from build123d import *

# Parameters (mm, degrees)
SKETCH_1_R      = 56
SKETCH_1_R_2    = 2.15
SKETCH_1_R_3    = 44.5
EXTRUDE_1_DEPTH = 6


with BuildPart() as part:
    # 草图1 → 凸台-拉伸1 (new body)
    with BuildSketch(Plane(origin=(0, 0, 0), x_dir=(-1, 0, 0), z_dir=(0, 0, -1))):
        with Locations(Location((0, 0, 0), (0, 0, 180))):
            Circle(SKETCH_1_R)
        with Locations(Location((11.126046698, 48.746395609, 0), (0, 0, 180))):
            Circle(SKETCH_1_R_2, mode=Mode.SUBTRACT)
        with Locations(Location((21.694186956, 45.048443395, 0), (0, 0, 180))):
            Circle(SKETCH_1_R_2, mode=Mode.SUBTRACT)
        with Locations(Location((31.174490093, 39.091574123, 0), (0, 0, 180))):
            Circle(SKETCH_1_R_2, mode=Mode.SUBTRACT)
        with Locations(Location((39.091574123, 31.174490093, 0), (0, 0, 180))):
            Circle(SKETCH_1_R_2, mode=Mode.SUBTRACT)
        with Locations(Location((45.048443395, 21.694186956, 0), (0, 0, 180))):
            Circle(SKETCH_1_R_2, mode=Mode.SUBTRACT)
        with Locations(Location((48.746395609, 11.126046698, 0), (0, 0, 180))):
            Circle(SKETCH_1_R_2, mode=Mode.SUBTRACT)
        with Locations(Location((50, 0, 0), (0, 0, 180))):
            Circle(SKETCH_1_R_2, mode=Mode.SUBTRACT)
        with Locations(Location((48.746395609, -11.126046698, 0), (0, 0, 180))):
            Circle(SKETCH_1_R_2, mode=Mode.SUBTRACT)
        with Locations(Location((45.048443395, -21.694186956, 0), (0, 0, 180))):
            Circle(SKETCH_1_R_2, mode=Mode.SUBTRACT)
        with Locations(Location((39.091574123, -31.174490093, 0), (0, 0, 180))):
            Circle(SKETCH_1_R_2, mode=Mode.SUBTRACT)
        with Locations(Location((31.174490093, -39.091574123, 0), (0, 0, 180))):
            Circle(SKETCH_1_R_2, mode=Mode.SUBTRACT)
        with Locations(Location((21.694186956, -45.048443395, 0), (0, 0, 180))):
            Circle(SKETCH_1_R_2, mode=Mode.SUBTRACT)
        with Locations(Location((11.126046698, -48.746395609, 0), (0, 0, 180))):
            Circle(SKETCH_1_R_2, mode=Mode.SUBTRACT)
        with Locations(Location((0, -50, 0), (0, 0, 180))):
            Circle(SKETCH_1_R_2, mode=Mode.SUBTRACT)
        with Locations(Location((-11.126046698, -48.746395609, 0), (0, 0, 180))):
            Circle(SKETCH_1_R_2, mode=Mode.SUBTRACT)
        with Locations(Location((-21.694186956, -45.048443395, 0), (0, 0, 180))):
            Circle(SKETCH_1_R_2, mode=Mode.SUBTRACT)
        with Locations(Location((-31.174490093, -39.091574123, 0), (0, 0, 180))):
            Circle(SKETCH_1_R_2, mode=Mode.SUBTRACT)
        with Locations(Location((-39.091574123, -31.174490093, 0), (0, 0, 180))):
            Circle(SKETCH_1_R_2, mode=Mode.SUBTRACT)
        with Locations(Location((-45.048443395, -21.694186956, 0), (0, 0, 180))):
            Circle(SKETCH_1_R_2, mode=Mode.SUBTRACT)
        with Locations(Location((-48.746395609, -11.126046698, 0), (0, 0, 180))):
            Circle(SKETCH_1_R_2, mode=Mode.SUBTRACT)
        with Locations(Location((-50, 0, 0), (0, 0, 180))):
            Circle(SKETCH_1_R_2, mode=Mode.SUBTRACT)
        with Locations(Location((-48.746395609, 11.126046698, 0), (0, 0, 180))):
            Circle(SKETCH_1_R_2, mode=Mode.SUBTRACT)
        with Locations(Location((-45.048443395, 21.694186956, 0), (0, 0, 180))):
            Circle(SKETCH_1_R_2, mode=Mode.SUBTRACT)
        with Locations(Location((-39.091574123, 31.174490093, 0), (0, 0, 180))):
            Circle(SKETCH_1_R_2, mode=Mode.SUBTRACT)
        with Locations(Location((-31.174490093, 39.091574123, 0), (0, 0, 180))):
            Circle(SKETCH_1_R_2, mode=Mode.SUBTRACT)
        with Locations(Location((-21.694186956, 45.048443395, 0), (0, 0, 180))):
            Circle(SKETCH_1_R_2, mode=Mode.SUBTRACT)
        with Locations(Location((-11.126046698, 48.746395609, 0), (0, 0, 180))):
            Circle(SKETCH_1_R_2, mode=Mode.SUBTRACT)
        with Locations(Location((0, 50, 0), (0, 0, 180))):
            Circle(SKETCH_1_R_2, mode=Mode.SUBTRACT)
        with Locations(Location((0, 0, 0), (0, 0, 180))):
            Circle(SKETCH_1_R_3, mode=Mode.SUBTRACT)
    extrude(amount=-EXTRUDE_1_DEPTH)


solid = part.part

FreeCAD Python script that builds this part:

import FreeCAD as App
import Part
import Sketcher

V = App.Vector

doc = App.newDocument("Part")
body = doc.addObject("PartDesign::Body", "Body")

sketch1 = doc.addObject("Sketcher::SketchObject", "Sketch")
body.addObject(sketch1)
sketch1.AttachmentSupport = (doc.XY_Plane, [""])
sketch1.MapMode = "FlatFace"
sketch1.addGeometry(Part.Circle(V(0, 0, 0), V(0, 0, 1), 56), False)
sketch1.addGeometry(Part.Circle(V(-31.2, 39.1, 0), V(0, 0, 1), 2.1), False)
sketch1.addGeometry(Part.Circle(V(-39.1, 31.2, 0), V(0, 0, 1), 2.1), False)
sketch1.addGeometry(Part.Circle(V(-21.7, 45, 0), V(0, 0, 1), 2.1), False)
sketch1.addGeometry(Part.Circle(V(-11.1, 48.7, 0), V(0, 0, 1), 2.1), False)
sketch1.addGeometry(Part.Circle(V(-45, 21.7, 0), V(0, 0, 1), 2.1), False)
sketch1.addGeometry(Part.Circle(V(-48.7, 11.1, 0), V(0, 0, 1), 2.1), False)
sketch1.addGeometry(Part.Circle(V(0, 50, 0), V(0, 0, 1), 2.1), False)
sketch1.addGeometry(Part.Circle(V(11.1, 48.7, 0), V(0, 0, 1), 2.1), False)
sketch1.addGeometry(Part.Circle(V(21.7, 45, 0), V(0, 0, 1), 2.1), False)
sketch1.addGeometry(Part.Circle(V(31.2, 39.1, 0), V(0, 0, 1), 2.1), False)
sketch1.addGeometry(Part.Circle(V(39.1, 31.2, 0), V(0, 0, 1), 2.1), False)
sketch1.addGeometry(Part.Circle(V(45, 21.7, 0), V(0, 0, 1), 2.1), False)
sketch1.addGeometry(Part.Circle(V(48.7, 11.1, 0), V(0, 0, 1), 2.1), False)
sketch1.addGeometry(Part.Circle(V(-50, 0, 0), V(0, 0, 1), 2.1), False)
sketch1.addGeometry(Part.Circle(V(-48.7, -11.1, 0), V(0, 0, 1), 2.1), False)
sketch1.addGeometry(Part.Circle(V(-45, -21.7, 0), V(0, 0, 1), 2.1), False)
sketch1.addGeometry(Part.Circle(V(-39.1, -31.2, 0), V(0, 0, 1), 2.1), False)
sketch1.addGeometry(Part.Circle(V(-31.2, -39.1, 0), V(0, 0, 1), 2.1), False)
sketch1.addGeometry(Part.Circle(V(-21.7, -45, 0), V(0, 0, 1), 2.1), False)
sketch1.addGeometry(Part.Circle(V(-11.1, -48.7, 0), V(0, 0, 1), 2.1), False)
sketch1.addGeometry(Part.Circle(V(0, -50, 0), V(0, 0, 1), 2.1), False)
sketch1.addGeometry(Part.Circle(V(0, 0, 0), V(0, 0, 1), 44.5), False)
sketch1.addGeometry(Part.Circle(V(50, 0, 0), V(0, 0, 1), 2.1), False)
sketch1.addGeometry(Part.Circle(V(48.7, -11.1, 0), V(0, 0, 1), 2.1), False)
sketch1.addGeometry(Part.Circle(V(45, -21.7, 0), V(0, 0, 1), 2.1), False)
sketch1.addGeometry(Part.Circle(V(11.1, -48.7, 0), V(0, 0, 1), 2.1), False)
sketch1.addGeometry(Part.Circle(V(21.7, -45, 0), V(0, 0, 1), 2.1), False)
sketch1.addGeometry(Part.Circle(V(39.1, -31.2, 0), V(0, 0, 1), 2.1), False)
sketch1.addGeometry(Part.Circle(V(31.2, -39.1, 0), V(0, 0, 1), 2.1), False)
sketch1.addConstraint(Sketcher.Constraint("Coincident", 0, 3, -1, 1))
sketch1.addConstraint(Sketcher.Constraint("Coincident", 22, 3, -1, 1))
sketch1.addConstraint(Sketcher.Constraint("Equal", 1, 2))
sketch1.addConstraint(Sketcher.Constraint("Equal", 2, 3))
sketch1.addConstraint(Sketcher.Constraint("Equal", 3, 4))
sketch1.addConstraint(Sketcher.Constraint("Equal", 4, 5))
sketch1.addConstraint(Sketcher.Constraint("Equal", 5, 6))
sketch1.addConstraint(Sketcher.Constraint("Equal", 6, 7))
sketch1.addConstraint(Sketcher.Constraint("Equal", 7, 8))
sketch1.addConstraint(Sketcher.Constraint("Equal", 8, 9))
sketch1.addConstraint(Sketcher.Constraint("Equal", 9, 10))
sketch1.addConstraint(Sketcher.Constraint("Equal", 10, 11))
sketch1.addConstraint(Sketcher.Constraint("Equal", 11, 12))
sketch1.addConstraint(Sketcher.Constraint("Equal", 12, 13))
sketch1.addConstraint(Sketcher.Constraint("Equal", 13, 14))
sketch1.addConstraint(Sketcher.Constraint("Equal", 14, 15))
sketch1.addConstraint(Sketcher.Constraint("Equal", 15, 16))
sketch1.addConstraint(Sketcher.Constraint("Equal", 16, 17))
sketch1.addConstraint(Sketcher.Constraint("Equal", 17, 18))
sketch1.addConstraint(Sketcher.Constraint("Equal", 18, 19))
sketch1.addConstraint(Sketcher.Constraint("Equal", 19, 20))
sketch1.addConstraint(Sketcher.Constraint("Equal", 20, 21))
sketch1.addConstraint(Sketcher.Constraint("Equal", 21, 23))
sketch1.addConstraint(Sketcher.Constraint("Equal", 23, 24))
sketch1.addConstraint(Sketcher.Constraint("Equal", 24, 25))
sketch1.addConstraint(Sketcher.Constraint("Equal", 25, 26))
sketch1.addConstraint(Sketcher.Constraint("Equal", 26, 27))
sketch1.addConstraint(Sketcher.Constraint("Equal", 27, 28))
sketch1.addConstraint(Sketcher.Constraint("Equal", 28, 29))
sketch1.addConstraint(Sketcher.Constraint("Symmetric", 13, 3, 15, 3, -1, 1))
sketch1.addConstraint(Sketcher.Constraint("Symmetric", 12, 3, 16, 3, -1, 1))
sketch1.addConstraint(Sketcher.Constraint("Symmetric", 11, 3, 17, 3, -1, 1))
sketch1.addConstraint(Sketcher.Constraint("Symmetric", 10, 3, 18, 3, -1, 1))
sketch1.addConstraint(Sketcher.Constraint("Symmetric", 9, 3, 19, 3, -1, 1))
sketch1.addConstraint(Sketcher.Constraint("Symmetric", 8, 3, 20, 3, -1, 1))
sketch1.addConstraint(Sketcher.Constraint("Symmetric", 7, 3, 21, 3, -1, 1))
sketch1.addConstraint(Sketcher.Constraint("Symmetric", 14, 3, 23, 3, -1, 1))
sketch1.addConstraint(Sketcher.Constraint("Symmetric", 6, 3, 24, 3, -1, 1))
sketch1.addConstraint(Sketcher.Constraint("Symmetric", 5, 3, 25, 3, -1, 1))
sketch1.addConstraint(Sketcher.Constraint("Symmetric", 4, 3, 26, 3, -1, 1))
sketch1.addConstraint(Sketcher.Constraint("Symmetric", 3, 3, 27, 3, -1, 1))
sketch1.addConstraint(Sketcher.Constraint("Symmetric", 2, 3, 28, 3, -1, 1))
sketch1.addConstraint(Sketcher.Constraint("Symmetric", 1, 3, 29, 3, -1, 1))
sketch1.addConstraint(Sketcher.Constraint("Symmetric", 4, 3, 8, 3, -2))
sketch1.addConstraint(Sketcher.Constraint("Symmetric", 3, 3, 9, 3, -2))
sketch1.addConstraint(Sketcher.Constraint("Symmetric", 1, 3, 10, 3, -2))
sketch1.addConstraint(Sketcher.Constraint("Symmetric", 2, 3, 11, 3, -2))
sketch1.addConstraint(Sketcher.Constraint("Symmetric", 5, 3, 12, 3, -2))
sketch1.addConstraint(Sketcher.Constraint("Symmetric", 6, 3, 13, 3, -2))
sketch1.addConstraint(Sketcher.Constraint("PointOnObject", 7, 3, -2))
sketch1.addConstraint(Sketcher.Constraint("PointOnObject", 14, 3, -1))
sketch1.addConstraint(Sketcher.Constraint("Diameter", 0, 112.0))
sketch1.addConstraint(Sketcher.Constraint("Diameter", 22, 89.0))
sketch1.addConstraint(Sketcher.Constraint("Diameter", 1, 4.3))
sketch1.addConstraint(Sketcher.Constraint("DistanceY", -1, 1, 7, 3, 50.0))
sketch1.addConstraint(Sketcher.Constraint("DistanceX", 14, 3, -1, 1, 50.0))
sketch1.addConstraint(Sketcher.Constraint("DistanceX", 1, 3, -1, 1, 31.17449))
sketch1.addConstraint(Sketcher.Constraint("DistanceY", -1, 1, 2, 3, 31.17449))
sketch1.addConstraint(Sketcher.Constraint("DistanceY", 1, 3, 3, 3, 5.956869))
sketch1.addConstraint(Sketcher.Constraint("DistanceX", 3, 3, 4, 3, 10.56814))
sketch1.addConstraint(Sketcher.Constraint("DistanceY", 1, 3, 4, 3, 9.654821))
sketch1.addConstraint(Sketcher.Constraint("DistanceX", 5, 3, 2, 3, 5.956869))
sketch1.addConstraint(Sketcher.Constraint("DistanceY", 5, 3, 4, 3, 27.052209))
sketch1.addConstraint(Sketcher.Constraint("DistanceY", 6, 3, 5, 3, 10.56814))
sketch1.addConstraint(Sketcher.Constraint("DistanceX", 6, 3, 2, 3, 9.654821))
sketch1.addConstraint(Sketcher.Constraint("DistanceX", 6, 3, 3, 3, 27.052209))
sketch1.addConstraint(Sketcher.Constraint("DistanceY", -1, 1, 1, 3, 39.091574))
sketch1.addConstraint(Sketcher.Constraint("DistanceX", 2, 3, -1, 1, 39.091574))
pad1 = doc.addObject("PartDesign::Pad", "Pad")
body.addObject(pad1)
pad1.Profile = sketch1
pad1.Length = 6

doc.recompute()
